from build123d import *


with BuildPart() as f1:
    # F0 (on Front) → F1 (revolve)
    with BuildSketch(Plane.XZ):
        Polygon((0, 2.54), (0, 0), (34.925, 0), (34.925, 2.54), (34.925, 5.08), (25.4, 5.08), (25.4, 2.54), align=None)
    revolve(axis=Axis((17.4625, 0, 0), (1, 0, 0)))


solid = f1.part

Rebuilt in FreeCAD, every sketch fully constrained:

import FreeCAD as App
import Part
import Sketcher
from FreeCAD import Vector
Q = App.Units.Quantity


def add_polygon(sketch, points):
    """Adds a closed chain of lines whose ends are joined by coincident constraints."""
    first, n = sketch.GeometryCount, len(points)
    for a, b in zip(points, points[1:] + points[:1]):
        sketch.addGeometry(Part.LineSegment(App.Vector(*a, 0), App.Vector(*b, 0)), False)
    for i in range(n):
        sketch.addConstraint(Sketcher.Constraint("Coincident", first + i, 2, first + (i + 1) % n, 1))

doc = App.newDocument("Part")
params = doc.addObject("Spreadsheet::Sheet", "Params")
for row, (alias, value) in enumerate([
    ("sketch1_width", "1 in"),
    ("sketch1_height", "0.1 in"),
    ("sketch1_width2", "1.375 in"),
    ("revolution_angle", "360 deg"),
], start=1):
    params.set(f"A{row}", alias)
    params.set(f"B{row}", "=" + value)
    params.setAlias(f"B{row}", alias)

body = doc.addObject("PartDesign::Body", "Body")

# Sketch on XZ plane
sketch1 = body.newObject("Sketcher::SketchObject", "Sketch")
sketch1.AttachmentSupport = (doc.getObject("XZ_Plane"), [""])
sketch1.MapMode = "FlatFace"
add_polygon(sketch1, [(0, 2.5), (0, 0), (34.9, 0), (34.9, 5.1), (25.4, 5.1), (25.4, 2.5)])  # lines 0-5
sketch1.addConstraint(Sketcher.Constraint("Vertical", 0))
sketch1.addConstraint(Sketcher.Constraint("Horizontal", 1))
sketch1.addConstraint(Sketcher.Constraint("Vertical", 2))
sketch1.addConstraint(Sketcher.Constraint("Horizontal", 3))
sketch1.addConstraint(Sketcher.Constraint("Vertical", 4))
sketch1.addConstraint(Sketcher.Constraint("Horizontal", 5))
sketch1.addConstraint(Sketcher.Constraint("Coincident", 0, 2, -1, 1))
sketch1.addConstraint(Sketcher.Constraint("Equal", 0, 4))
sketch1.addConstraint(Sketcher.Constraint("DistanceX", 5, 2, 5, 1, Q("1 in")))
sketch1.addConstraint(Sketcher.Constraint("DistanceY", 0, 2, 0, 1, Q("0.1 in")))
sketch1.addConstraint(Sketcher.Constraint("DistanceX", 1, 1, 1, 2, Q("1.375 in")))
sketch1.setExpression("Constraints[14]", "Params.sketch1_width")
sketch1.setExpression("Constraints[15]", "Params.sketch1_height")
sketch1.setExpression("Constraints[16]", "Params.sketch1_width2")
revolution = body.newObject("PartDesign::Revolution", "Revolution")
revolution.Profile = sketch1
revolution.ReferenceAxis = (sketch1, ["H_Axis"])
revolution.setExpression("Angle", "Params.revolution_angle")

doc.recompute()
